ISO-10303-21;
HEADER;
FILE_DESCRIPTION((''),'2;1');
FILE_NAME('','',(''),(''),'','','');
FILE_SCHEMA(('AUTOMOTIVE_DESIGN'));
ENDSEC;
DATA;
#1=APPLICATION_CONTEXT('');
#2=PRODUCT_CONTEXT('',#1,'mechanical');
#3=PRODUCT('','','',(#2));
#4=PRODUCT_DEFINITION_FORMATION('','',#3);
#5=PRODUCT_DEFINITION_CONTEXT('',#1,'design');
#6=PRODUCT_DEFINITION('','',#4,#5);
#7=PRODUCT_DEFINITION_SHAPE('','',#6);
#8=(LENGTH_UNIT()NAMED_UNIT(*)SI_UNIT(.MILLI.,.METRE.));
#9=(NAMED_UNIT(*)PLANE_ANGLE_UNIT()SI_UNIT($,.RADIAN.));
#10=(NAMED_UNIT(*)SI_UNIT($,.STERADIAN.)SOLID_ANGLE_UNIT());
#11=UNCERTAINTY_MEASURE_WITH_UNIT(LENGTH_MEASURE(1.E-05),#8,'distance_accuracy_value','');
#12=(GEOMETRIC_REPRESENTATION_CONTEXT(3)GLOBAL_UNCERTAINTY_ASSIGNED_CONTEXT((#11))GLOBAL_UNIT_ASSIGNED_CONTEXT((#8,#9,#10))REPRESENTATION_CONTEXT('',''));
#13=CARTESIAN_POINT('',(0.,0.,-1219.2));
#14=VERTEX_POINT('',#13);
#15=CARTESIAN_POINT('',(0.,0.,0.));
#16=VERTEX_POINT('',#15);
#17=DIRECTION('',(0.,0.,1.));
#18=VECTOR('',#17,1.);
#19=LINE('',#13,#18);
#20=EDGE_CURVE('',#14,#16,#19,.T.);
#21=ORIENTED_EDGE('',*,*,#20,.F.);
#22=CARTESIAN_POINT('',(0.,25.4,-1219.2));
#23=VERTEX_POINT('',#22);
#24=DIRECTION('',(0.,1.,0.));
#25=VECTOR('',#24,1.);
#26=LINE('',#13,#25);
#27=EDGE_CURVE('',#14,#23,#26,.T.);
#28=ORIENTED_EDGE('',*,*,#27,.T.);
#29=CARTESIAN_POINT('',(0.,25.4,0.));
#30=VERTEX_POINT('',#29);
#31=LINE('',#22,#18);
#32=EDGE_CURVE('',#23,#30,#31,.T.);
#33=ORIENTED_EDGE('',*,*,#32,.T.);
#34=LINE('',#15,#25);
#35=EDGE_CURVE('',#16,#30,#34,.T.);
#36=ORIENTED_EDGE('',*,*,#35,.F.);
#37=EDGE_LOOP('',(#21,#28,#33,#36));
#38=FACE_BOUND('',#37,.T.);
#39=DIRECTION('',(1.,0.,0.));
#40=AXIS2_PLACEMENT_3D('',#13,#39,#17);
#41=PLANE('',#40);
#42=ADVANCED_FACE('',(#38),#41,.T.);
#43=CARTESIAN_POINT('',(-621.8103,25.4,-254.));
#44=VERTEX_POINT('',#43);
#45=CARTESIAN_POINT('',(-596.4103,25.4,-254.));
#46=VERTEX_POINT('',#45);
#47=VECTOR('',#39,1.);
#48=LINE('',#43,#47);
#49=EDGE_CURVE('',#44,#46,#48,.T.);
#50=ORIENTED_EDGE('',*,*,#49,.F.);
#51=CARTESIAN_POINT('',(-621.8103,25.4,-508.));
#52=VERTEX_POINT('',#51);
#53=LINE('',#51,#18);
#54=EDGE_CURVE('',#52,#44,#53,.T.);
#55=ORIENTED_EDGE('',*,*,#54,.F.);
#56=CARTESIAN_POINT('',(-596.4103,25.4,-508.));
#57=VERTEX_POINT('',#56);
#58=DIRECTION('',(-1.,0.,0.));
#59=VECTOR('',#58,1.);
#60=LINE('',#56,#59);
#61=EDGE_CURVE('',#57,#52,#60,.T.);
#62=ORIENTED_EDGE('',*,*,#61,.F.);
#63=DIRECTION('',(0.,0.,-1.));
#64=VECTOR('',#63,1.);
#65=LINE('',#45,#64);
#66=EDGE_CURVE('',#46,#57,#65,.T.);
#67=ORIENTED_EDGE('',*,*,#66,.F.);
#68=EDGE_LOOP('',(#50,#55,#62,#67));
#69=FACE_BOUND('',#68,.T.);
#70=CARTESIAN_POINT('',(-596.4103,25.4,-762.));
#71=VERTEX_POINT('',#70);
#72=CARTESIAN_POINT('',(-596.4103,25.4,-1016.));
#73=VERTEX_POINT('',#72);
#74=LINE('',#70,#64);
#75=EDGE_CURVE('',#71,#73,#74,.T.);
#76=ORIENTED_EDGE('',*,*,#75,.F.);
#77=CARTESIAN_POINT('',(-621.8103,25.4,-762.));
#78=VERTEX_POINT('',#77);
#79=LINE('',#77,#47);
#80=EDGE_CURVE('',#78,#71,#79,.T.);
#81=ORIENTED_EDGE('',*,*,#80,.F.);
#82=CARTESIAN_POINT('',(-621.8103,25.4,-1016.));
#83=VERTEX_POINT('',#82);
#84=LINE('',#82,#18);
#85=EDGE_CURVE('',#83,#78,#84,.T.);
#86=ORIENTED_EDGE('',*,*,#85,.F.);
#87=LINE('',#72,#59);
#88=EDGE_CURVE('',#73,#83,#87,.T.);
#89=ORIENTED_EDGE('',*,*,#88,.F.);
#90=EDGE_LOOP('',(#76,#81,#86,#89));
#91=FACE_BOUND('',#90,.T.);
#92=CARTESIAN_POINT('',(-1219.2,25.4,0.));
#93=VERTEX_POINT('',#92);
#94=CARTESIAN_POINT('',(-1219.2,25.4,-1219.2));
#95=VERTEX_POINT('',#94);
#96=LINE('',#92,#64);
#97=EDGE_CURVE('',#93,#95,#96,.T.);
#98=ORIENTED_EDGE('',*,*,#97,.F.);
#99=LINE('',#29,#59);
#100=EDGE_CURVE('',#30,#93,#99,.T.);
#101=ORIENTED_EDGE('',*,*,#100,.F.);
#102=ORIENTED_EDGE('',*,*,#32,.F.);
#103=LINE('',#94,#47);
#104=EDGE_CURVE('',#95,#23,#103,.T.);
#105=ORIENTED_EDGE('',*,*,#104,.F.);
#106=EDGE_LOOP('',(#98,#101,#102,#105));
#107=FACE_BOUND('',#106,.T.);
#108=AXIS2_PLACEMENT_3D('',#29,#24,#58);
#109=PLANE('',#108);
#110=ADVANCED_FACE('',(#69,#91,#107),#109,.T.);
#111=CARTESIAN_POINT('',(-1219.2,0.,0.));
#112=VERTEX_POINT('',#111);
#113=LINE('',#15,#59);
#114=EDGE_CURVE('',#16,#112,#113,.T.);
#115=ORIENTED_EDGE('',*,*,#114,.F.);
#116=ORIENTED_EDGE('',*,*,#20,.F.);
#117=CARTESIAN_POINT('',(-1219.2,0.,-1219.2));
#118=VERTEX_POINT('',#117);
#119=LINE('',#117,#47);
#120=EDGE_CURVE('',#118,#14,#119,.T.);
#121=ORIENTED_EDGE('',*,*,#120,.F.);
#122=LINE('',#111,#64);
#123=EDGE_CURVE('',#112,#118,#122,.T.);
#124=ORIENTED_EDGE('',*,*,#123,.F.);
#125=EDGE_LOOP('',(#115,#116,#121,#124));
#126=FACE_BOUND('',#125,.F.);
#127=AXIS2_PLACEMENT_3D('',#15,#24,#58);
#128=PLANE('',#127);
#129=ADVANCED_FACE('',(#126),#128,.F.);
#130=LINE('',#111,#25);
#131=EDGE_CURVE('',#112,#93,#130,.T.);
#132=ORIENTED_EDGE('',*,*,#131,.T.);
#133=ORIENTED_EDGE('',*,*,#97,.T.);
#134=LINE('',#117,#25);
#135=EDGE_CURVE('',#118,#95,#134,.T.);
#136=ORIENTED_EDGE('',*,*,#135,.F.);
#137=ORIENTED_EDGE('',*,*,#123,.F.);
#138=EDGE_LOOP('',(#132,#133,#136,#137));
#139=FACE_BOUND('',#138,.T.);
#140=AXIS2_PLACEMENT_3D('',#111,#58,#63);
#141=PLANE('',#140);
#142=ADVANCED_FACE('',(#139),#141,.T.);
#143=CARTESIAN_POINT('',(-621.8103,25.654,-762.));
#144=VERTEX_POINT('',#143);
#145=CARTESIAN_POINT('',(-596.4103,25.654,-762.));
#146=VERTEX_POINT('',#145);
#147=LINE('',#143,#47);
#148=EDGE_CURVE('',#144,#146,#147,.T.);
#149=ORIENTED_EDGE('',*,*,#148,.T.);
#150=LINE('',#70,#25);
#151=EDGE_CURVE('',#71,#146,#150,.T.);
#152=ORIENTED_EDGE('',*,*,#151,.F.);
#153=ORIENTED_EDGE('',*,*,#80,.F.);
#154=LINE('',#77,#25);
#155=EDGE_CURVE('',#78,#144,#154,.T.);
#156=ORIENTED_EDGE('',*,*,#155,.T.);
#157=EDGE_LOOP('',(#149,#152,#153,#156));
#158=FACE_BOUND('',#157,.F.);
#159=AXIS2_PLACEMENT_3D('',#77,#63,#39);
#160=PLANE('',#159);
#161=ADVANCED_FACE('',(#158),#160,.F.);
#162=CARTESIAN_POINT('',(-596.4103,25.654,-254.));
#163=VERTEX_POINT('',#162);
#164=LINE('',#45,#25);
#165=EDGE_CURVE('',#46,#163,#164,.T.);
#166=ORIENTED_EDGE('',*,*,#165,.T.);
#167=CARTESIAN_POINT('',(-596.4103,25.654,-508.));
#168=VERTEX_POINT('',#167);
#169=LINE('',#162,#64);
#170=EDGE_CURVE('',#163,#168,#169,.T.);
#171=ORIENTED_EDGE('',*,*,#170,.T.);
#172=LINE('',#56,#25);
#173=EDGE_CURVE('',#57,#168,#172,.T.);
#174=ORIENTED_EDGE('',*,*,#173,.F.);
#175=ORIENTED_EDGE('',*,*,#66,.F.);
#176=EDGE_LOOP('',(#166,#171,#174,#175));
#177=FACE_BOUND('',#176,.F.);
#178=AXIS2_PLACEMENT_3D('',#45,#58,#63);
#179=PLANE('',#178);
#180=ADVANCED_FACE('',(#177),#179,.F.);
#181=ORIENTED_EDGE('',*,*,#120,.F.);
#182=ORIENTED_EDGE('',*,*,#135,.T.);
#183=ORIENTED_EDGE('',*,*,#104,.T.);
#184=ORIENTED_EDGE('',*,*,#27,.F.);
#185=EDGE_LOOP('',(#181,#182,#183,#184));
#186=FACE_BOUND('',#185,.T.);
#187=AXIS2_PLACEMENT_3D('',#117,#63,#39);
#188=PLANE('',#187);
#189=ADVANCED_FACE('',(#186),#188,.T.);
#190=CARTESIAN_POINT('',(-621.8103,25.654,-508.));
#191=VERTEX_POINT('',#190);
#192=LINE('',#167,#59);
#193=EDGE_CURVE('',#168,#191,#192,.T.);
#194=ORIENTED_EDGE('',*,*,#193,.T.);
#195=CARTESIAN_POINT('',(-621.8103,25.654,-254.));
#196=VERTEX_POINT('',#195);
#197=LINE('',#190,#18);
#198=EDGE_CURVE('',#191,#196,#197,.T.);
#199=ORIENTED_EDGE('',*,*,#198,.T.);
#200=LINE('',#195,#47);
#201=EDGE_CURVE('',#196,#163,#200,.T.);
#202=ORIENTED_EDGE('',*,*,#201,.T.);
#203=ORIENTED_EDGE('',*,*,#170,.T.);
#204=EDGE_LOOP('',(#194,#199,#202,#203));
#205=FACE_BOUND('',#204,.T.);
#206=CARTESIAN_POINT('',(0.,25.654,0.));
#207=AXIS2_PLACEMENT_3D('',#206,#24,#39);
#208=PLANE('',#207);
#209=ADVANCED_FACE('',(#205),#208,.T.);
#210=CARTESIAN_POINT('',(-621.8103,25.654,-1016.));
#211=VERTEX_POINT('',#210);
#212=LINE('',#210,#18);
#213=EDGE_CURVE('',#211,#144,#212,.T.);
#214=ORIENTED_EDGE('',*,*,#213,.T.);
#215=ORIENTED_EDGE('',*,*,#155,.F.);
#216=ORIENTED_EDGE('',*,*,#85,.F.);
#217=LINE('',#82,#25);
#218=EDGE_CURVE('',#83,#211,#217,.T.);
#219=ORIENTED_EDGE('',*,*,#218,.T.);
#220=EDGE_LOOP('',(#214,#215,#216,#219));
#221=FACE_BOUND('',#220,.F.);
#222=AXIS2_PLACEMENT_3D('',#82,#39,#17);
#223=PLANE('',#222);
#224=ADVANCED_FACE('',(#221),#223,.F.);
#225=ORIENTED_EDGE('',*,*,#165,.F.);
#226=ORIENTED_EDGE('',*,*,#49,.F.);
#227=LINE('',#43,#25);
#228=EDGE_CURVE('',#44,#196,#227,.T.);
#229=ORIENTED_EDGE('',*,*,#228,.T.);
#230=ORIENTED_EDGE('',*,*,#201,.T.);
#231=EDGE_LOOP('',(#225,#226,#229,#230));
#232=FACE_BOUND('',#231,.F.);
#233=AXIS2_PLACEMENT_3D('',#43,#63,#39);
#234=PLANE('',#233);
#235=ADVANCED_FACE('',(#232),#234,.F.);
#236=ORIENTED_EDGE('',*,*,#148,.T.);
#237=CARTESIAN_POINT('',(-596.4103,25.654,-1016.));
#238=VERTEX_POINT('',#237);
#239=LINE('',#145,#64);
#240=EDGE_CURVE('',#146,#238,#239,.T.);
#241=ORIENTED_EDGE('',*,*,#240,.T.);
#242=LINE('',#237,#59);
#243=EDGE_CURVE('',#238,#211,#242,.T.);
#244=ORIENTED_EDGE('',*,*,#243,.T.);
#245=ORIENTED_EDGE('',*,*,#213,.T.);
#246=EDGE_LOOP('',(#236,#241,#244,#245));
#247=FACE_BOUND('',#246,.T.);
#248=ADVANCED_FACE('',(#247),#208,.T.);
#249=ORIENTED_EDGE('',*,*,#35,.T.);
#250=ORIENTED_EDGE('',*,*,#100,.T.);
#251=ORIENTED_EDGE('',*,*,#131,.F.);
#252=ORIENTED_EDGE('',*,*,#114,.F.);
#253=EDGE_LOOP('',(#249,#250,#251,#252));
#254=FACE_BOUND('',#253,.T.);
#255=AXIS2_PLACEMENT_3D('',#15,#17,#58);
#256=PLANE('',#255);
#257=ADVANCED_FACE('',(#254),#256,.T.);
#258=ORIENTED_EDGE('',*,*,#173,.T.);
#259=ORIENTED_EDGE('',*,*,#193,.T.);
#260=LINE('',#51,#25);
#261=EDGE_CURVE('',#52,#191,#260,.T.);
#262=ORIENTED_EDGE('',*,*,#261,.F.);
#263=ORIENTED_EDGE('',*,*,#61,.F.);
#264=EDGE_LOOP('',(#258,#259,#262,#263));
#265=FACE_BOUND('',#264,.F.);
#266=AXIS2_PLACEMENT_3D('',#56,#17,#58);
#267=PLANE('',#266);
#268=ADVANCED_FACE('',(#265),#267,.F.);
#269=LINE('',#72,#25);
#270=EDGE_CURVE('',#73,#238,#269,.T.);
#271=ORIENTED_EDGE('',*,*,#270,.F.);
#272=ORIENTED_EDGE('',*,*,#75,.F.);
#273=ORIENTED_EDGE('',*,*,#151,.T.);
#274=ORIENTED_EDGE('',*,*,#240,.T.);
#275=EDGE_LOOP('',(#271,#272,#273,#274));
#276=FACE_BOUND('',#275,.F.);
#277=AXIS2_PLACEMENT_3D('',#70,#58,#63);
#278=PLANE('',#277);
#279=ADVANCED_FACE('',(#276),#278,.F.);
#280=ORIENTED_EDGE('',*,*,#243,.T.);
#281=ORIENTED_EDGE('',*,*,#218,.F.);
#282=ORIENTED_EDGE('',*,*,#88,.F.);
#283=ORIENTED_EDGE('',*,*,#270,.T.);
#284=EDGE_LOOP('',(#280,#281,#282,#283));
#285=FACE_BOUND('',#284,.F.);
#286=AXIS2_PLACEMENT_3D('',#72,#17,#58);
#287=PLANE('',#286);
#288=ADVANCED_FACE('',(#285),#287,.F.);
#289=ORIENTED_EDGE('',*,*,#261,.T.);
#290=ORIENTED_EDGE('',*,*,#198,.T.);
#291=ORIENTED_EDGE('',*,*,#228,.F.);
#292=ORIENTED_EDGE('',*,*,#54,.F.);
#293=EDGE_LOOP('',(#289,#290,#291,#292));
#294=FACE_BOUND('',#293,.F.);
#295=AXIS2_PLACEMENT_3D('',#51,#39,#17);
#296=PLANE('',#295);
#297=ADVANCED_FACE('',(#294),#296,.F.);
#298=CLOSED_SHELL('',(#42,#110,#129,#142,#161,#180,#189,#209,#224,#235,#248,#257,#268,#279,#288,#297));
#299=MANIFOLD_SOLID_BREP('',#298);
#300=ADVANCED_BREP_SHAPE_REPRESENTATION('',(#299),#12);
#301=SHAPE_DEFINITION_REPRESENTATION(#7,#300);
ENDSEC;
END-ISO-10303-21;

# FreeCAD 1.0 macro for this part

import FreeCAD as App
import Part
import Sketcher
Q = App.Units.Quantity

doc = App.newDocument("Part")
params = doc.addObject("Spreadsheet::Sheet", "Params")
for row, (alias, value) in enumerate([
    ("sketch1_width", "48 in"),
    ("pad1_length", "1 in"),
    ("sketch2_width", "1 in"),
    ("sketch2_height", "10 in"),
    ("pad2_length", "0.01 in"),
], start=1):
    params.set(f"A{row}", alias)
    params.set(f"B{row}", "=" + value)
    params.setAlias(f"B{row}", alias)

body = doc.addObject("PartDesign::Body", "Body")

sketch1 = body.newObject("Sketcher::SketchObject", "Sketch")
sketch1.AttachmentSupport = (doc.getObject("XZ_Plane"), [""])
sketch1.MapMode = "FlatFace"
sketch1.addGeometry([
    Part.LineSegment(App.Vector(-1219, 0, 0), App.Vector(0, 0, 0)),
    Part.LineSegment(App.Vector(0, 0, 0), App.Vector(0, -1219, 0)),
    Part.LineSegment(App.Vector(0, -1219, 0), App.Vector(-1219, -1219, 0)),
    Part.LineSegment(App.Vector(-1219, -1219, 0), App.Vector(-1219, 0, 0)),
], False)
sketch1.addConstraint([
    Sketcher.Constraint("Coincident", 0, 2, 1, 1),
    Sketcher.Constraint("Coincident", 1, 2, 2, 1),
    Sketcher.Constraint("Coincident", 2, 2, 3, 1),
    Sketcher.Constraint("Coincident", 3, 2, 0, 1),
    Sketcher.Constraint("Horizontal", 0),
    Sketcher.Constraint("Vertical", 1),
    Sketcher.Constraint("Horizontal", 2),
    Sketcher.Constraint("Vertical", 3),
    Sketcher.Constraint("Coincident", 0, 2, -1, 1),
    Sketcher.Constraint("Equal", 2, 1),
    Sketcher.Constraint("DistanceX", 0, 1, 0, 2, Q("48 in")),
])
sketch1.setExpression("Constraints[10]", "Params.sketch1_width")
pad1 = body.newObject("PartDesign::Pad", "Pad")
pad1.Profile = sketch1
pad1.setExpression("Length", "Params.pad1_length")
pad1.Reversed = True

sketch2 = body.newObject("Sketcher::SketchObject", "Sketch001")
sketch2.AttachmentSupport = (doc.getObject("XZ_Plane"), [""])
sketch2.MapMode = "FlatFace"
sketch2.AttachmentOffset = App.Placement(App.Vector(0, 0, -1 * 25.4), App.Rotation())
sketch2.addGeometry([
    Part.LineSegment(App.Vector(-622, -508, 0), App.Vector(-622, -254, 0)),
    Part.LineSegment(App.Vector(-622, -254, 0), App.Vector(-596, -254, 0)),
    Part.LineSegment(App.Vector(-596, -254, 0), App.Vector(-596, -508, 0)),
    Part.LineSegment(App.Vector(-596, -508, 0), App.Vector(-622, -508, 0)),
    Part.LineSegment(App.Vector(-622, -1016, 0), App.Vector(-622, -762, 0)),
    Part.LineSegment(App.Vector(-622, -762, 0), App.Vector(-596, -762, 0)),
    Part.LineSegment(App.Vector(-596, -762, 0), App.Vector(-596, -1016, 0)),
    Part.LineSegment(App.Vector(-596, -1016, 0), App.Vector(-622, -1016, 0)),
], False)
sketch2.addConstraint([
    Sketcher.Constraint("Coincident", 0, 2, 1, 1),
    Sketcher.Constraint("Coincident", 1, 2, 2, 1),
    Sketcher.Constraint("Coincident", 2, 2, 3, 1),
    Sketcher.Constraint("Coincident", 3, 2, 0, 1),
    Sketcher.Constraint("Coincident", 4, 2, 5, 1),
    Sketcher.Constraint("Coincident", 5, 2, 6, 1),
    Sketcher.Constraint("Coincident", 6, 2, 7, 1),
    Sketcher.Constraint("Coincident", 7, 2, 4, 1),
    Sketcher.Constraint("Vertical", 0),
    Sketcher.Constraint("Horizontal", 1),
    Sketcher.Constraint("Vertical", 2),
    Sketcher.Constraint("Horizontal", 3),
    Sketcher.Constraint("Vertical", 4),
    Sketcher.Constraint("Horizontal", 5),
    Sketcher.Constraint("Vertical", 6),
    Sketcher.Constraint("Horizontal", 7),
    Sketcher.Constraint("Vertical", 3, 2, 4, 2),
    Sketcher.Constraint("Vertical", 2, 2, 5, 2),
    Sketcher.Constraint("Equal", 2, 4),
    Sketcher.Constraint("DistanceX", 1, 1, 1, 2, Q("1 in")),
    Sketcher.Constraint("DistanceY", 0, 1, 0, 2, Q("10 in")),
    Sketcher.Constraint("DistanceY", 0, 2, -1, 1, Q("10 in")),
    Sketcher.Constraint("DistanceY", 4, 2, 3, 2, Q("10 in")),
    Sketcher.Constraint("DistanceX", 0, 2, -1, 1, Q("621.8103 mm")),
])
sketch2.setExpression("Constraints[19]", "Params.sketch2_width")
sketch2.setExpression("Constraints[20]", "Params.sketch2_height")
pad2 = body.newObject("PartDesign::Pad", "Pad001")
pad2.Profile = sketch2
pad2.setExpression("Length", "Params.pad2_length")
pad2.Reversed = True

doc.recompute()
